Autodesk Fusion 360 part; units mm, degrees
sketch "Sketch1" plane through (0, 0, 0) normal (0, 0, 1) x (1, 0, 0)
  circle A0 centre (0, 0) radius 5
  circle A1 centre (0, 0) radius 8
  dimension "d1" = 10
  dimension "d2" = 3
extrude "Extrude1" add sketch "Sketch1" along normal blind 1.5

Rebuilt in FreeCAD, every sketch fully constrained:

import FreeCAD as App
import Part
import Sketcher

V = App.Vector
Q = App.Units.Quantity

doc = App.newDocument("Part")
body = doc.addObject("PartDesign::Body", "Body")

sketch1 = doc.addObject("Sketcher::SketchObject", "Sketch")
body.addObject(sketch1)
sketch1.AttachmentSupport = (doc.XY_Plane, [""])
sketch1.MapMode = "FlatFace"
sketch1.addGeometry(Part.Circle(V(0, 0, 0), V(0, 0, 1), 8), False)
sketch1.addGeometry(Part.Circle(V(0, 0, 0), V(0, 0, 1), 5), False)
sketch1.addConstraint(Sketcher.Constraint("Coincident", 0, 3, -1, 1))
sketch1.addConstraint(Sketcher.Constraint("Coincident", 1, 3, -1, 1))
sketch1.addConstraint(Sketcher.Constraint("Diameter", 1, Q("10 mm")))
sketch1.addConstraint(Sketcher.Constraint("Diameter", 0, Q("16 mm")))
pad1 = doc.addObject("PartDesign::Pad", "Pad")
body.addObject(pad1)
pad1.Profile = sketch1
pad1.Length = 1.5

doc.recompute()
